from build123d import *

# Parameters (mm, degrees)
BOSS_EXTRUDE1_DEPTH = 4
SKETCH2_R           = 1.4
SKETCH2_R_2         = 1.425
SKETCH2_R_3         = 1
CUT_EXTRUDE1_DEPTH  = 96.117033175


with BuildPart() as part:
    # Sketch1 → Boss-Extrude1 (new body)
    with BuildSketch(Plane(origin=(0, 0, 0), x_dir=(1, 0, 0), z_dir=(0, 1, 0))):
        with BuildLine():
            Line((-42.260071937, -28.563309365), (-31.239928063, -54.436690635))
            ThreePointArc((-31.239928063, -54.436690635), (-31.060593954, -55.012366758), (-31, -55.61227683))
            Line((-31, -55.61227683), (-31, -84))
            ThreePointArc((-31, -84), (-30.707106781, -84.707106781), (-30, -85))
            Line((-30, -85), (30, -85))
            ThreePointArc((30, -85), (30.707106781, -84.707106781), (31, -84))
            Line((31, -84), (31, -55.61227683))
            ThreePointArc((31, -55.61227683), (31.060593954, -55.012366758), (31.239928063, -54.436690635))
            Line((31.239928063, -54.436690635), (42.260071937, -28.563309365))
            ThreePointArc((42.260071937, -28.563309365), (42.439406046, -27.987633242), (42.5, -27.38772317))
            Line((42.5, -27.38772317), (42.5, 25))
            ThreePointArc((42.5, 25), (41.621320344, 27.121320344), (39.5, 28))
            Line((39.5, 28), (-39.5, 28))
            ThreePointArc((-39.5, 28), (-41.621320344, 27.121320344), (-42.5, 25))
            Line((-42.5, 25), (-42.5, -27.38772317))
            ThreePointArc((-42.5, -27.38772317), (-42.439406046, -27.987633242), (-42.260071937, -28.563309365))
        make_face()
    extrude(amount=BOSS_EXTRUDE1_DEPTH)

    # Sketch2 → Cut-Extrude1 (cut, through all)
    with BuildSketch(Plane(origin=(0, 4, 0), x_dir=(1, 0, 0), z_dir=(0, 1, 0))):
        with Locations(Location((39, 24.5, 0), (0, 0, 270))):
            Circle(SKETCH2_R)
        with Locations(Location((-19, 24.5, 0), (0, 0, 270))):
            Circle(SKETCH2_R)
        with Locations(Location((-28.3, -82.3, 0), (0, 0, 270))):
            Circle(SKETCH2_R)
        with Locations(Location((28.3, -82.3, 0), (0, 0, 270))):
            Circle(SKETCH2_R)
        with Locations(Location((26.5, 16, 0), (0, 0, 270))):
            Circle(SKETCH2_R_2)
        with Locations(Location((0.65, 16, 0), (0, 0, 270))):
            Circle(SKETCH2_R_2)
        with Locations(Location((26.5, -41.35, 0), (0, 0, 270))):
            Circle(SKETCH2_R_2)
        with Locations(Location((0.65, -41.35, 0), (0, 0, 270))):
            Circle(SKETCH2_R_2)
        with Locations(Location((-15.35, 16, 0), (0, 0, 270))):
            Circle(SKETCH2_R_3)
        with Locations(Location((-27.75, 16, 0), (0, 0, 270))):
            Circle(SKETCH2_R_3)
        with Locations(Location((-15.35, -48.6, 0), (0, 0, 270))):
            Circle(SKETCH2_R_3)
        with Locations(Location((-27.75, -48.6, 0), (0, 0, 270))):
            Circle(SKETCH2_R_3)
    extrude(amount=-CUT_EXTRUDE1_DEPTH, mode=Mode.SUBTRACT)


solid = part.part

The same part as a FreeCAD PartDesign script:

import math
import FreeCAD as App
import Part
import Sketcher

V = App.Vector

doc = App.newDocument("Part")
body = doc.addObject("PartDesign::Body", "Body")

# Sketch on XZ plane
sketch1 = body.newObject("Sketcher::SketchObject", "Sketch")
sketch1.AttachmentSupport = (doc.getObject("XZ_Plane"), [""])
sketch1.MapMode = "FlatFace"
sketch1.addGeometry([
    Part.LineSegment(V(-42.3, 28.6, 0), V(-31.2, 54.4, 0)),  # 0
    Part.ArcOfCircle(Part.Circle(V(-34, 55.6, 0), V(0, 0, 1), 3), math.radians(-23), math.radians(0)),  # 1
    Part.LineSegment(V(-31, 55.6, 0), V(-31, 84, 0)),  # 2
    Part.ArcOfCircle(Part.Circle(V(-30, 84, 0), V(0, 0, 1), 1), math.radians(90), math.radians(180)),  # 3
    Part.LineSegment(V(-30, 85, 0), V(30, 85, 0)),  # 4
    Part.ArcOfCircle(Part.Circle(V(30, 84, 0), V(0, 0, 1), 1), math.radians(0), math.radians(90)),  # 5
    Part.LineSegment(V(31, 84, 0), V(31, 55.6, 0)),  # 6
    Part.ArcOfCircle(Part.Circle(V(34, 55.6, 0), V(0, 0, 1), 3), math.radians(-180), math.radians(-157)),  # 7
    Part.LineSegment(V(31.2, 54.4, 0), V(42.3, 28.6, 0)),  # 8
    Part.ArcOfCircle(Part.Circle(V(39.5, 27.4, 0), V(0, 0, 1), 3), math.radians(0), math.radians(23)),  # 9
    Part.LineSegment(V(42.5, 27.4, 0), V(42.5, -25, 0)),  # 10
    Part.ArcOfCircle(Part.Circle(V(39.5, -25, 0), V(0, 0, 1), 3), math.radians(-90), math.radians(0)),  # 11
    Part.LineSegment(V(39.5, -28, 0), V(-39.5, -28, 0)),  # 12
    Part.ArcOfCircle(Part.Circle(V(-39.5, -25, 0), V(0, 0, 1), 3), math.radians(180), math.radians(270)),  # 13
    Part.LineSegment(V(-42.5, -25, 0), V(-42.5, 27.4, 0)),  # 14
    Part.ArcOfCircle(Part.Circle(V(-39.5, 27.4, 0), V(0, 0, 1), 3), math.radians(157), math.radians(180)),  # 15
], False)
sketch1.addConstraint([
    Sketcher.Constraint("Tangent", 0, 2, 1, 1),
    Sketcher.Constraint("Tangent", 1, 2, 2, 1),
    Sketcher.Constraint("Tangent", 2, 2, 3, 2),
    Sketcher.Constraint("Tangent", 3, 1, 4, 1),
    Sketcher.Constraint("Tangent", 4, 2, 5, 2),
    Sketcher.Constraint("Tangent", 5, 1, 6, 1),
    Sketcher.Constraint("Tangent", 6, 2, 7, 1),
    Sketcher.Constraint("Tangent", 7, 2, 8, 1),
    Sketcher.Constraint("Tangent", 8, 2, 9, 2),
    Sketcher.Constraint("Tangent", 9, 1, 10, 1),
    Sketcher.Constraint("Tangent", 10, 2, 11, 2),
    Sketcher.Constraint("Tangent", 11, 1, 12, 1),
    Sketcher.Constraint("Tangent", 12, 2, 13, 2),
    Sketcher.Constraint("Tangent", 13, 1, 14, 1),
    Sketcher.Constraint("Tangent", 14, 2, 15, 2),
    Sketcher.Constraint("Tangent", 15, 1, 0, 1),
    Sketcher.Constraint("Vertical", 2),
    Sketcher.Constraint("Horizontal", 4),
    Sketcher.Constraint("Vertical", 6),
    Sketcher.Constraint("Vertical", 10),
    Sketcher.Constraint("Horizontal", 12),
    Sketcher.Constraint("Vertical", 14),
    Sketcher.Constraint("Equal", 3, 5),
    Sketcher.Constraint("Equal", 1, 7),
    Sketcher.Constraint("Equal", 7, 9),
    Sketcher.Constraint("Equal", 9, 11),
    Sketcher.Constraint("Equal", 11, 13),
    Sketcher.Constraint("Equal", 13, 15),
    Sketcher.Constraint("Symmetric", 1, 3, 7, 3, -2),
    Sketcher.Constraint("Symmetric", 9, 3, 15, 3, -2),
    Sketcher.Constraint("Radius", 1, 3.0),
    Sketcher.Constraint("Radius", 3, 1.0),
    Sketcher.Constraint("DistanceX", 4, 1, 4, 2, 60.0),
    Sketcher.Constraint("DistanceX", 12, 2, 12, 1, 79.0),
    Sketcher.Constraint("DistanceY", -1, 1, 3, 3, 84.0),
    Sketcher.Constraint("DistanceY", 11, 3, -1, 1, 25.0),
    Sketcher.Constraint("DistanceY", 2, 1, 2, 2, 28.387723),
    Sketcher.Constraint("DistanceY", 10, 2, 10, 1, 52.387723),
])
pad1 = body.newObject("PartDesign::Pad", "Pad")
pad1.Profile = sketch1
pad1.Length = 4
pad1.Reversed = True

# Sketch on XZ plane
sketch2 = body.newObject("Sketcher::SketchObject", "Sketch001")
sketch2.AttachmentSupport = (doc.getObject("XZ_Plane"), [""])
sketch2.MapMode = "FlatFace"
sketch2.AttachmentOffset = App.Placement(V(0, 0, -4), App.Rotation())
sketch2.addGeometry([
    Part.Circle(V(39, -24.5, 0), V(0, 0, 1), 1.4),  # 0
    Part.Circle(V(-19, -24.5, 0), V(0, 0, 1), 1.4),  # 1
    Part.Circle(V(-28.3, 82.3, 0), V(0, 0, 1), 1.4),  # 2
    Part.Circle(V(28.3, 82.3, 0), V(0, 0, 1), 1.4),  # 3
    Part.Circle(V(26.5, -16, 0), V(0, 0, 1), 1.4),  # 4
    Part.Circle(V(0.7, -16, 0), V(0, 0, 1), 1.4),  # 5
    Part.Circle(V(26.5, 41.4, 0), V(0, 0, 1), 1.4),  # 6
    Part.Circle(V(0.7, 41.4, 0), V(0, 0, 1), 1.4),  # 7
    Part.Circle(V(-15.3, -16, 0), V(0, 0, 1), 1),  # 8
    Part.Circle(V(-27.8, -16, 0), V(0, 0, 1), 1),  # 9
    Part.Circle(V(-15.3, 48.6, 0), V(0, 0, 1), 1),  # 10
    Part.Circle(V(-27.8, 48.6, 0), V(0, 0, 1), 1),  # 11
], False)
sketch2.addConstraint([
    Sketcher.Constraint("Equal", 0, 1),
    Sketcher.Constraint("Equal", 1, 2),
    Sketcher.Constraint("Equal", 2, 3),
    Sketcher.Constraint("Equal", 4, 5),
    Sketcher.Constraint("Equal", 5, 6),
    Sketcher.Constraint("Equal", 6, 7),
    Sketcher.Constraint("Equal", 8, 9),
    Sketcher.Constraint("Equal", 9, 10),
    Sketcher.Constraint("Equal", 10, 11),
    Sketcher.Constraint("Symmetric", 2, 3, 3, 3, -2),
    Sketcher.Constraint("Horizontal", 0, 3, 1, 3),
    Sketcher.Constraint("Horizontal", 4, 3, 5, 3),
    Sketcher.Constraint("Horizontal", 6, 3, 7, 3),
    Sketcher.Constraint("Horizontal", 5, 3, 8, 3),
    Sketcher.Constraint("Horizontal", 8, 3, 9, 3),
    Sketcher.Constraint("Horizontal", 10, 3, 11, 3),
    Sketcher.Constraint("Vertical", 4, 3, 6, 3),
    Sketcher.Constraint("Vertical", 5, 3, 7, 3),
    Sketcher.Constraint("Vertical", 8, 3, 10, 3),
    Sketcher.Constraint("Vertical", 9, 3, 11, 3),
    Sketcher.Constraint("Diameter", 8, 2.0),
    Sketcher.Constraint("Diameter", 0, 2.8),
    Sketcher.Constraint("Diameter", 4, 2.85),
    Sketcher.Constraint("DistanceX", -1, 1, 0, 3, 39.0),
    Sketcher.Constraint("DistanceX", 1, 3, -1, 1, 19.0),
    Sketcher.Constraint("DistanceY", 4, 3, -1, 1, 16.0),
    Sketcher.Constraint("DistanceX", 8, 3, 5, 3, 16.0),
    Sketcher.Constraint("DistanceY", 0, 3, -1, 1, 24.5),
    Sketcher.Constraint("DistanceX", 2, 3, -1, 1, 28.3),
    Sketcher.Constraint("DistanceY", -1, 1, 2, 3, 82.3),
    Sketcher.Constraint("DistanceX", -1, 1, 4, 3, 26.5),
    Sketcher.Constraint("DistanceY", -1, 1, 10, 3, 48.6),
    Sketcher.Constraint("DistanceX", 9, 3, 8, 3, 12.4),
    Sketcher.Constraint("DistanceX", -1, 1, 5, 3, 0.65),
    Sketcher.Constraint("DistanceY", -1, 1, 6, 3, 41.35),
])
pocket1 = body.newObject("PartDesign::Pocket", "Pocket")
pocket1.Profile = sketch2
pocket1.Type = "ThroughAll"
pocket1.Reversed = True

doc.recompute()
